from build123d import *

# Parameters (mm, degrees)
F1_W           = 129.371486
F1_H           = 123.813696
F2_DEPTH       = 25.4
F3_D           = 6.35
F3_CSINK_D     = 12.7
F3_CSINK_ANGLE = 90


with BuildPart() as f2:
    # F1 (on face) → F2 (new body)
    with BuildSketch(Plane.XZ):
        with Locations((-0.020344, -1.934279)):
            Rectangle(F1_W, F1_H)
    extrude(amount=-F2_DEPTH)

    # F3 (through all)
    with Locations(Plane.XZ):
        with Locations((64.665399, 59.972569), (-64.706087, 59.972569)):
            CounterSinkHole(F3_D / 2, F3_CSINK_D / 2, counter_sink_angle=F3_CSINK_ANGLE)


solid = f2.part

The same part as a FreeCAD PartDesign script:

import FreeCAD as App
import Part
import Sketcher
Q = App.Units.Quantity


def add_polygon(sketch, points):
    """Adds a closed chain of lines whose ends are joined by coincident constraints."""
    first, n = sketch.GeometryCount, len(points)
    for a, b in zip(points, points[1:] + points[:1]):
        sketch.addGeometry(Part.LineSegment(App.Vector(*a, 0), App.Vector(*b, 0)), False)
    for i in range(n):
        sketch.addConstraint(Sketcher.Constraint("Coincident", first + i, 2, first + (i + 1) % n, 1))

doc = App.newDocument("Part")
body = doc.addObject("PartDesign::Body", "Body")

sketch1 = body.newObject("Sketcher::SketchObject", "Sketch")
sketch1.AttachmentSupport = (doc.getObject("XZ_Plane"), [""])
sketch1.MapMode = "FlatFace"
add_polygon(sketch1, [(-65, 60), (-65, -64), (65, -64), (65, 60)])
sketch1.addConstraint([
    Sketcher.Constraint("Vertical", 0),
    Sketcher.Constraint("Horizontal", 1),
    Sketcher.Constraint("Vertical", 2),
    Sketcher.Constraint("Horizontal", 3),
    Sketcher.Constraint("DistanceX", -1, 1, 1, 2, Q("64.665399 mm")),
    Sketcher.Constraint("DistanceX", 1, 1, 1, 2, Q("129.371486 mm")),
    Sketcher.Constraint("DistanceY", 0, 2, 0, 1, Q("123.813696 mm")),
    Sketcher.Constraint("DistanceY", -1, 1, 2, 2, Q("59.972569 mm")),
])
pad1 = body.newObject("PartDesign::Pad", "Pad")
pad1.Profile = sketch1
pad1.Length = Q("1 in")
pad1.Reversed = True

sketch2 = body.newObject("Sketcher::SketchObject", "Sketch001")
sketch2.AttachmentSupport = (doc.getObject("XZ_Plane"), [""])
sketch2.MapMode = "FlatFace"
sketch2.addGeometry([
    Part.Circle(App.Vector(64.7, 60, 0), App.Vector(0, 0, 1), 3.2),
    Part.Circle(App.Vector(-64.7, 60, 0), App.Vector(0, 0, 1), 3.2),
], False)
sketch2.addConstraint([
    Sketcher.Constraint("Equal", 0, 1),
    Sketcher.Constraint("Horizontal", 0, 3, 1, 3),
    Sketcher.Constraint("Diameter", 0, Q("0.25 in")),
    Sketcher.Constraint("DistanceX", -1, 1, 0, 3, Q("64.665399 mm")),
    Sketcher.Constraint("DistanceY", -1, 1, 0, 3, Q("59.972569 mm")),
    Sketcher.Constraint("DistanceX", 1, 3, -1, 1, Q("64.706087 mm")),
])
doc.recompute()
hole = body.newObject("PartDesign::Hole", "Hole")
hole.Profile = sketch2
hole.ThreadType = "None"
hole.Diameter = Q("0.25 in")
hole.DepthType = "ThroughAll"
hole.HoleCutType = "Countersink"
hole.HoleCutDiameter = Q("0.5 in")
hole.HoleCutCountersinkAngle = 90

doc.recompute()
